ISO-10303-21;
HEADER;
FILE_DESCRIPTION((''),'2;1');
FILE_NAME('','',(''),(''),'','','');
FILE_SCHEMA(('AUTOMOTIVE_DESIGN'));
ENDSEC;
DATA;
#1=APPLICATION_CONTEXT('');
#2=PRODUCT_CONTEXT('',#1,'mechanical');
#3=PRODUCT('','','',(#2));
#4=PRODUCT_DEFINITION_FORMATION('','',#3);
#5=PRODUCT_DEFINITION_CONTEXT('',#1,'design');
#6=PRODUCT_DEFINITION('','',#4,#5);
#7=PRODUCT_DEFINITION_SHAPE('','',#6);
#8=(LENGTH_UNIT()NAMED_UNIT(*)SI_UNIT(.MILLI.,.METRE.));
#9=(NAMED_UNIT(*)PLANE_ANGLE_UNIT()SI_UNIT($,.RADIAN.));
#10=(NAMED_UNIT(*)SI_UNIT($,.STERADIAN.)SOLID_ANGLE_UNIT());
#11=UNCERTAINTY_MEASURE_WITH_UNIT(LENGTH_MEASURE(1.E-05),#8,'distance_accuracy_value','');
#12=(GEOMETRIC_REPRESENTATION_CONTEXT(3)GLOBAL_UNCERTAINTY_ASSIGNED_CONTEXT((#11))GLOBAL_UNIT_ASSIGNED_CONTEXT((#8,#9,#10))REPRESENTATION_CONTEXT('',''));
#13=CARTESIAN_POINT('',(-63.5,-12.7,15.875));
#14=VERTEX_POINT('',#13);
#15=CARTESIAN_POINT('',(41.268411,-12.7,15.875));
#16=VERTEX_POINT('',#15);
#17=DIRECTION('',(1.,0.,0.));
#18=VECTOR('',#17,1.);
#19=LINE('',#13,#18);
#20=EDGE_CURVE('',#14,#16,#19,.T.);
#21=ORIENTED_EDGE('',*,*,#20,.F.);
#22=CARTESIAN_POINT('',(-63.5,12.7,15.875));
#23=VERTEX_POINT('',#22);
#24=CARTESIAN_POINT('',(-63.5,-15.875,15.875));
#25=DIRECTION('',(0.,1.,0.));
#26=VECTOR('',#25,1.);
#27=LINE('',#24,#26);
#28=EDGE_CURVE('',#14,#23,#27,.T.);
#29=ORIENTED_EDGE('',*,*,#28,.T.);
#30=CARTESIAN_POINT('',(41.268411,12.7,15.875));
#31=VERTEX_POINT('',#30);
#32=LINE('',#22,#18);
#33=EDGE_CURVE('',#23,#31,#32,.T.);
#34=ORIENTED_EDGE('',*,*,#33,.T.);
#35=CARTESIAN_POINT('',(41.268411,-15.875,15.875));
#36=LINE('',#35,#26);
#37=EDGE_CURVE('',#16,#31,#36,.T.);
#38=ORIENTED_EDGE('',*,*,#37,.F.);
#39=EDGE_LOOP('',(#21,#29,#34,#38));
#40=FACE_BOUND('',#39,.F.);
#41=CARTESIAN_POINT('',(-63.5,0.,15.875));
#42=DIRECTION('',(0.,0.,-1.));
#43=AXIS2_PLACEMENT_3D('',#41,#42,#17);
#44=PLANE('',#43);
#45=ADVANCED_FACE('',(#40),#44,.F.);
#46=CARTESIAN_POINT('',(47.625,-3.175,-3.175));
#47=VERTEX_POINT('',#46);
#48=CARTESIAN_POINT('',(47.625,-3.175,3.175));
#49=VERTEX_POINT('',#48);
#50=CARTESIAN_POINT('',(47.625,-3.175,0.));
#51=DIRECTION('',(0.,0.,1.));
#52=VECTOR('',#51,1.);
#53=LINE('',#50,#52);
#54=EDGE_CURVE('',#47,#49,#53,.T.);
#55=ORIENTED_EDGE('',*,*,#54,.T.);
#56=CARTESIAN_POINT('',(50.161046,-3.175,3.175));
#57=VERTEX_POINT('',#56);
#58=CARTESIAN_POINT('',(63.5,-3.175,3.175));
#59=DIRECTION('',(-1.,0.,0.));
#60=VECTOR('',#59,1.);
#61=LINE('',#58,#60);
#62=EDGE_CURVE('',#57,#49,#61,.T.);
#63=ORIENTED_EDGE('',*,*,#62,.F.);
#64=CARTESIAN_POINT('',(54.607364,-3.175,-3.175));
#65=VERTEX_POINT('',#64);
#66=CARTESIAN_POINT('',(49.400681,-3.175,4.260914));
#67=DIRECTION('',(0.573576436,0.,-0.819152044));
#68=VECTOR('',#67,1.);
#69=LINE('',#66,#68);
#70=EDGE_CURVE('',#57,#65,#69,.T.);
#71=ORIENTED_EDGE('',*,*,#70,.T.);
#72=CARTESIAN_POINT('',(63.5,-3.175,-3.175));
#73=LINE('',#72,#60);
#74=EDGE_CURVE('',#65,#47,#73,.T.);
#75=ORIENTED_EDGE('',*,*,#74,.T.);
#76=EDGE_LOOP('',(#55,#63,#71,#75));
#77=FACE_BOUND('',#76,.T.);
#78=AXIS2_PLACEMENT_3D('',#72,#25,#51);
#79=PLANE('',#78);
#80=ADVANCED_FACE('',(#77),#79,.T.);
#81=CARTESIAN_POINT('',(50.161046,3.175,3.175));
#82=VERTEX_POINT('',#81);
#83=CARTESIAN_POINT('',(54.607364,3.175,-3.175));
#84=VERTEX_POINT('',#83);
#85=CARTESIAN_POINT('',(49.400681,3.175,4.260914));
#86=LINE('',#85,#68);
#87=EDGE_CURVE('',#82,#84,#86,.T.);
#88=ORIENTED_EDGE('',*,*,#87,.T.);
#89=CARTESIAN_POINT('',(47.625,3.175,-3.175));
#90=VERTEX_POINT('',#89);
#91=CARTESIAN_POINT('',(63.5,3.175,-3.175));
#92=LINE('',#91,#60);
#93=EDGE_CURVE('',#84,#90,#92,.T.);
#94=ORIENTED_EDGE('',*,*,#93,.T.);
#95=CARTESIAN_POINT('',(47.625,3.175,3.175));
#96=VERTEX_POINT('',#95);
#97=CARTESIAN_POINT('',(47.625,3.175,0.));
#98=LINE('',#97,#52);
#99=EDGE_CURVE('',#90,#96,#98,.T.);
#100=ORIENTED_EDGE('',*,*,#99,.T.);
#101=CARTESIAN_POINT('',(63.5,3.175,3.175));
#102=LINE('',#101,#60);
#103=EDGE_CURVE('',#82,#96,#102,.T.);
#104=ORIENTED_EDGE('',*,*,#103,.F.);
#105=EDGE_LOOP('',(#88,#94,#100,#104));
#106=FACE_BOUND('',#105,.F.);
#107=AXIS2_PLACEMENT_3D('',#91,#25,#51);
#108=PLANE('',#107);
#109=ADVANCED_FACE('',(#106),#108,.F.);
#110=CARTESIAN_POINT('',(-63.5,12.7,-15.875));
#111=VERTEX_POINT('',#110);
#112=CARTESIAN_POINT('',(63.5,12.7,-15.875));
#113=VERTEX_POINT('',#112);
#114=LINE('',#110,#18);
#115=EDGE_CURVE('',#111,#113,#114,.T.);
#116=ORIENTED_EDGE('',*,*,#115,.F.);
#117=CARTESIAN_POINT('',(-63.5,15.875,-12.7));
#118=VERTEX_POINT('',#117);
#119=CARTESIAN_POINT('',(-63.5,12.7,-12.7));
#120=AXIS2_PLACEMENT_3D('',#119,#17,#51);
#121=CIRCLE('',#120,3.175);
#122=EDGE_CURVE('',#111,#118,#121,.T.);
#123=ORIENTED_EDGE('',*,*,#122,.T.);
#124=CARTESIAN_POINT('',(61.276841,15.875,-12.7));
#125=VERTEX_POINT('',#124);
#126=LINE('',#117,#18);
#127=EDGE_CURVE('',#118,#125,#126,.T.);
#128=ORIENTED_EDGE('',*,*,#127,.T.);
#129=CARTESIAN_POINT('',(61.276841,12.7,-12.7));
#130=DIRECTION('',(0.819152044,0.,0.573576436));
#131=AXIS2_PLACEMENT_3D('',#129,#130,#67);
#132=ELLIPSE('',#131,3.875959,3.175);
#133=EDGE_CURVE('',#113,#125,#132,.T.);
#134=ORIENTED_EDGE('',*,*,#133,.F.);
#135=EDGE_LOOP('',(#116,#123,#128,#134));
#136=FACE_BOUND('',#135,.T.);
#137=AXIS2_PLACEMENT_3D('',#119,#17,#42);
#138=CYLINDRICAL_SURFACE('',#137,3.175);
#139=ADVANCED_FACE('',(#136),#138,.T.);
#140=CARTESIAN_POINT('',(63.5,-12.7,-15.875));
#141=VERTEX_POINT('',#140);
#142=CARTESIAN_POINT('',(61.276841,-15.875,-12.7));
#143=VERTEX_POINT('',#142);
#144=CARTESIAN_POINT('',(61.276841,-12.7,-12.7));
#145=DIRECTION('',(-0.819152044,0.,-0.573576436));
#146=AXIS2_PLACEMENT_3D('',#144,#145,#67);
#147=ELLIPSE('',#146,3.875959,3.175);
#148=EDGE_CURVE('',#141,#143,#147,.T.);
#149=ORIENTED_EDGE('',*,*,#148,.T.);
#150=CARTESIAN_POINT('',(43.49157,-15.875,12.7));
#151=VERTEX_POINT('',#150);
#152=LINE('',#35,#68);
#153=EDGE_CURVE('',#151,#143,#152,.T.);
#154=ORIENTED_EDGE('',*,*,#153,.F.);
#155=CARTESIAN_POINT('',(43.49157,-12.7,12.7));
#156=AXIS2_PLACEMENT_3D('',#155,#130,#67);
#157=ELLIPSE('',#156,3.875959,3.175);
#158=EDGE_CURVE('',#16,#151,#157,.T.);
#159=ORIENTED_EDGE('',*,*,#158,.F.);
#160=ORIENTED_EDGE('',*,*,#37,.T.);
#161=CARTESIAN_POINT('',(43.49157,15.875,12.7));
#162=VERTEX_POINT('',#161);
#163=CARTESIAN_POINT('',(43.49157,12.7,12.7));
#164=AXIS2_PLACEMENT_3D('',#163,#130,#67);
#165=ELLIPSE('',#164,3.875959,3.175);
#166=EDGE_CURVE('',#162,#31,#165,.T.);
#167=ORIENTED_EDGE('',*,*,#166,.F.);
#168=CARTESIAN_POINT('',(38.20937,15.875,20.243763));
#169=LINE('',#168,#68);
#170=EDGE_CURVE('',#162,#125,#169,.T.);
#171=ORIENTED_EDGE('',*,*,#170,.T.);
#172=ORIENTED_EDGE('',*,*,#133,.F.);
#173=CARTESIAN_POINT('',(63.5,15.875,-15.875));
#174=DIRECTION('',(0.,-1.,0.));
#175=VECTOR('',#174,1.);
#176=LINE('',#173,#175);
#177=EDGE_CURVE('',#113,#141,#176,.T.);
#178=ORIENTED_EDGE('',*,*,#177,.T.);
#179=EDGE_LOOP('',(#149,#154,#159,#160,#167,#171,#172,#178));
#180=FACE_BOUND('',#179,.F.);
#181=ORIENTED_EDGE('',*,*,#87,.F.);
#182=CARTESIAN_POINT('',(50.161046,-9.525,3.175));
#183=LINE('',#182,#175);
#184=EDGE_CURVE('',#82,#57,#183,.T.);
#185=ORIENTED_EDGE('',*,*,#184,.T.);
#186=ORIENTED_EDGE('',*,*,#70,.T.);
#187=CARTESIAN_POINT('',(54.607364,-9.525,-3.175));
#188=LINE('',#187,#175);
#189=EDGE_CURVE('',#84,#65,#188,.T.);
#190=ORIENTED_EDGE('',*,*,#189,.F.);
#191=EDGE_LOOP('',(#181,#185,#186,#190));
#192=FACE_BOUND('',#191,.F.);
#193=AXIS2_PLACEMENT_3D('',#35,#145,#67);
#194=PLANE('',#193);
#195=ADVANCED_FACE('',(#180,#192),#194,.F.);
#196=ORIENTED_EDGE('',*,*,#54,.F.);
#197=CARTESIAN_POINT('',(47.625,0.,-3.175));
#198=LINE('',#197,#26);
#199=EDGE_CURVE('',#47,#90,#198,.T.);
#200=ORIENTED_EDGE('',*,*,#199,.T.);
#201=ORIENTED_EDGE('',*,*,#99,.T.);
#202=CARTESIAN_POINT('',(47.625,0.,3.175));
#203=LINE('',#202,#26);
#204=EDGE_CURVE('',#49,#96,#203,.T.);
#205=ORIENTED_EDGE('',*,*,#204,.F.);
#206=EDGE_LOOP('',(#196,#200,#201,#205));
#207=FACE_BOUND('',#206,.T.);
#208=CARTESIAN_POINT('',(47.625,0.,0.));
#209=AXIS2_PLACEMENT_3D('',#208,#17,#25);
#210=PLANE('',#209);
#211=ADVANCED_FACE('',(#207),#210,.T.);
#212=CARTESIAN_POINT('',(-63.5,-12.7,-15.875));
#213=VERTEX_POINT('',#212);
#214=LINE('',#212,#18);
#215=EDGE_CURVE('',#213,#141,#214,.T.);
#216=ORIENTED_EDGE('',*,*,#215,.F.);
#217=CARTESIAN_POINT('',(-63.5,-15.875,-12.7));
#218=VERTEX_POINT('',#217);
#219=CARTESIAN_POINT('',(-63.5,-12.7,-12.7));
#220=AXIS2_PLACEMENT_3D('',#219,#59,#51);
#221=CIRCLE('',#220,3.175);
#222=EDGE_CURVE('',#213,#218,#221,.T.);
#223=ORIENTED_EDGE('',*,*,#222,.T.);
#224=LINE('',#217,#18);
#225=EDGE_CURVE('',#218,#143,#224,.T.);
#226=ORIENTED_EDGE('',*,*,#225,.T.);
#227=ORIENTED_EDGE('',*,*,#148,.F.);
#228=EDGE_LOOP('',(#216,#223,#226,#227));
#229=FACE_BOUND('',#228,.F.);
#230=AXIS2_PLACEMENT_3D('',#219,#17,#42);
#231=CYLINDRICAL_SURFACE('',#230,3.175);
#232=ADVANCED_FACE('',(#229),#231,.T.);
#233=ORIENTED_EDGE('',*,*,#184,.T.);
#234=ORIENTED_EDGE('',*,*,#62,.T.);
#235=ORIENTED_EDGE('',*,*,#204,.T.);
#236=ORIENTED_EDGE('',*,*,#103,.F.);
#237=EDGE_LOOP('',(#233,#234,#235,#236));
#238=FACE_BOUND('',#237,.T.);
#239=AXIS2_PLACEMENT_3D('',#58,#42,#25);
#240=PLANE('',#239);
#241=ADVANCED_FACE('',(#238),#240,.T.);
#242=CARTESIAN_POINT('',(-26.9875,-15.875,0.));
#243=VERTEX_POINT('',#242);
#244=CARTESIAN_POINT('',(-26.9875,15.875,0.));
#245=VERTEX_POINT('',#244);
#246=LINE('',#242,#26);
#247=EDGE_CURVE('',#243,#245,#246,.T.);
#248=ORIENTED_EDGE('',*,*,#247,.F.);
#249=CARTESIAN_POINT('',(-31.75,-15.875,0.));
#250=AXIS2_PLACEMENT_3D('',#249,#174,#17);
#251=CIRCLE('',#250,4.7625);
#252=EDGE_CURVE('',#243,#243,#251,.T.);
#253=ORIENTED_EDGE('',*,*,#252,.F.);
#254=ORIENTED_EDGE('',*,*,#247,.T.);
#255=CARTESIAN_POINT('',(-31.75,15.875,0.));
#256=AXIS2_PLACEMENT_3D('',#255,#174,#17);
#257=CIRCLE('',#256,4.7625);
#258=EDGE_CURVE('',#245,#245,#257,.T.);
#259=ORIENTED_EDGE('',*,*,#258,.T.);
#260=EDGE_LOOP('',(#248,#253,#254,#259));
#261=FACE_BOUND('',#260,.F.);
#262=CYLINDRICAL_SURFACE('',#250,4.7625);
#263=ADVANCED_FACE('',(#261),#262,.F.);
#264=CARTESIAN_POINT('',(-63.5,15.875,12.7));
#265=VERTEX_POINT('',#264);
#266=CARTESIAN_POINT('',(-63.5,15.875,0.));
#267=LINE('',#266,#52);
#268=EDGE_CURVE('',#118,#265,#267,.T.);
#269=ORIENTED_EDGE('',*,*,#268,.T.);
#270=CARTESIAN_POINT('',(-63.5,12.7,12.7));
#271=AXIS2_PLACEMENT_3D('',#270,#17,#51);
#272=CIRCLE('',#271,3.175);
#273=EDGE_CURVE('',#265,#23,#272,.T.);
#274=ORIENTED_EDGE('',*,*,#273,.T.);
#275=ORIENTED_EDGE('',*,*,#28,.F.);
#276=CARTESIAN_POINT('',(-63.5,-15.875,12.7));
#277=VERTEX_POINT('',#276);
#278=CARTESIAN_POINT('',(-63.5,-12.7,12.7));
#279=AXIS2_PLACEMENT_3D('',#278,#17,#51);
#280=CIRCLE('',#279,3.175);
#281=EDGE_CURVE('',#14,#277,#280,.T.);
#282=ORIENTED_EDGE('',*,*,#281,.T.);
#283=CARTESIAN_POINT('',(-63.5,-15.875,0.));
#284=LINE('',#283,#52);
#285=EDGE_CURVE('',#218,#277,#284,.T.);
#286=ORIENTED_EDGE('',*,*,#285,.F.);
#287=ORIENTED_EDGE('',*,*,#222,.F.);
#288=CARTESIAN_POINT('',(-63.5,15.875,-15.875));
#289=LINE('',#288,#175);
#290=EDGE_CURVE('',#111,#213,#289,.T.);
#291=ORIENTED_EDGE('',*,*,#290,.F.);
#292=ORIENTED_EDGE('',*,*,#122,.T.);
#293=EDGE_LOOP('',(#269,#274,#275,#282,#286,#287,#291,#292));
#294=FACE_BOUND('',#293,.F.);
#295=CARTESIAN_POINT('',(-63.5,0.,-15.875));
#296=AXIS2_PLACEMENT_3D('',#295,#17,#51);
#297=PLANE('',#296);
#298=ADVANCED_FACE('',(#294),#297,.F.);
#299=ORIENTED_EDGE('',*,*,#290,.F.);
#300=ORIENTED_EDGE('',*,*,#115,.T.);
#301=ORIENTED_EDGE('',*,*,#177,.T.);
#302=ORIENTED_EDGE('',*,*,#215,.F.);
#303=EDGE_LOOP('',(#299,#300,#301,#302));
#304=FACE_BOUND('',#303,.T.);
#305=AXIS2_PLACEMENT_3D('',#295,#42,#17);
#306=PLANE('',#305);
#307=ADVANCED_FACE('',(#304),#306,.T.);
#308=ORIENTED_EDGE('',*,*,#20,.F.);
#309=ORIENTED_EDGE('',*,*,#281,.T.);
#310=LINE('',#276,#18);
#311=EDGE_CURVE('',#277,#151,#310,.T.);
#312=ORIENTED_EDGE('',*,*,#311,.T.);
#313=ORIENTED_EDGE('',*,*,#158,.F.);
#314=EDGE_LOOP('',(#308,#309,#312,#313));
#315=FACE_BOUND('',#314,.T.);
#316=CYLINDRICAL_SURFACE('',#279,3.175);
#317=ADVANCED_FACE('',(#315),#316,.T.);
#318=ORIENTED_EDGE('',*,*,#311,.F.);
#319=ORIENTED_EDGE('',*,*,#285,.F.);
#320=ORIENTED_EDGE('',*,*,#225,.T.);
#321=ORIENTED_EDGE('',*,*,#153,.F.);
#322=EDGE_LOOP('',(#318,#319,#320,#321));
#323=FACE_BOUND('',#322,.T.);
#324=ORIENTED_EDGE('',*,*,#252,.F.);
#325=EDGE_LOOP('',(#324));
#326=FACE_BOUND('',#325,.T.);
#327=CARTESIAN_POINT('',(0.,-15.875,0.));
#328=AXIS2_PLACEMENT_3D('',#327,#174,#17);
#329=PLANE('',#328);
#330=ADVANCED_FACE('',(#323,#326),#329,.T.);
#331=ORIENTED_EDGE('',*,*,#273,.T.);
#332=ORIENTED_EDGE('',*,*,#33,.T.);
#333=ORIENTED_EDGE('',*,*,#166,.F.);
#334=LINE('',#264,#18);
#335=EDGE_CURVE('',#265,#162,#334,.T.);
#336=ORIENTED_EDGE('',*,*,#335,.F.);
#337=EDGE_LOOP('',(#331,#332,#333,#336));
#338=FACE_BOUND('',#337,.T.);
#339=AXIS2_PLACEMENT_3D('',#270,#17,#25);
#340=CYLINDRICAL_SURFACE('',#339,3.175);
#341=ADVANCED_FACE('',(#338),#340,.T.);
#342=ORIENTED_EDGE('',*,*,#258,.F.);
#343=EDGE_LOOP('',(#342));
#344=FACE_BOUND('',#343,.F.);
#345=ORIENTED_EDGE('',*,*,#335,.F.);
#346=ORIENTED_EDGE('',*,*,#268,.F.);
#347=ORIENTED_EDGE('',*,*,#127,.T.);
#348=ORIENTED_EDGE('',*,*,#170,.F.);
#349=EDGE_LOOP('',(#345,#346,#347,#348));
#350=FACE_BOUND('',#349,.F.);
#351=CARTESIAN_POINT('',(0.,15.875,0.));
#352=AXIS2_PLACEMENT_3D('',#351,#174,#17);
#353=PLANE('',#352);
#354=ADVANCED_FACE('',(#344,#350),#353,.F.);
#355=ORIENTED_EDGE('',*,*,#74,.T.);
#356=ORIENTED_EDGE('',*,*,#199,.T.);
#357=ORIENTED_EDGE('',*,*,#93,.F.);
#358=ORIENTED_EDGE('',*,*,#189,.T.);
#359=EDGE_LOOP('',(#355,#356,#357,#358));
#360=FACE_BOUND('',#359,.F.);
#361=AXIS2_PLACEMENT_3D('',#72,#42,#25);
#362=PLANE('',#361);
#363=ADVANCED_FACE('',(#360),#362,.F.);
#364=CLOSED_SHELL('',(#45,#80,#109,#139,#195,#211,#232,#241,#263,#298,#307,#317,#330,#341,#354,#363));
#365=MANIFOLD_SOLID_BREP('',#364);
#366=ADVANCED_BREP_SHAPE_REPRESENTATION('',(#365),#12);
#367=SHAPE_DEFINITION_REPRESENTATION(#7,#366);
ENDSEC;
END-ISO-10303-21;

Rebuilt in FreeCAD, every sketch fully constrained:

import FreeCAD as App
import Part
import Sketcher
from FreeCAD import Vector
Q = App.Units.Quantity


def edges_at(feature, points):
    """Names of the edges that pass closest to the given points."""
    edges = feature.Shape.Edges
    near = lambda p: min(range(len(edges)), key=lambda i: edges[i].distToShape(Part.Vertex(*p))[0])
    return sorted({f"Edge{near(p) + 1}" for p in points})


def add_polygon(sketch, points):
    """Adds a closed chain of lines whose ends are joined by coincident constraints."""
    first, n = sketch.GeometryCount, len(points)
    for a, b in zip(points, points[1:] + points[:1]):
        sketch.addGeometry(Part.LineSegment(App.Vector(*a, 0), App.Vector(*b, 0)), False)
    for i in range(n):
        sketch.addConstraint(Sketcher.Constraint("Coincident", first + i, 2, first + (i + 1) % n, 1))

doc = App.newDocument("Part")
body = doc.addObject("PartDesign::Body", "Body")

sketch1 = body.newObject("Sketcher::SketchObject", "Sketch")
sketch1.AttachmentSupport = (doc.getObject("XZ_Plane"), [""])
sketch1.MapMode = "FlatFace"
add_polygon(sketch1, [(-64, 16), (-64, -16), (64, -16), (64, 16)])
sketch1.addConstraint(Sketcher.Constraint("Vertical", 0))
sketch1.addConstraint(Sketcher.Constraint("Horizontal", 1))
sketch1.addConstraint(Sketcher.Constraint("Vertical", 2))
sketch1.addConstraint(Sketcher.Constraint("Horizontal", 3))
sketch1.addConstraint(Sketcher.Constraint("Symmetric", 0, 2, 2, 2, -1, 1))
sketch1.addConstraint(Sketcher.Constraint("DistanceX", 1, 1, 1, 2, Q("5 in")))
sketch1.addConstraint(Sketcher.Constraint("DistanceY", 0, 2, 0, 1, Q("1.25 in")))
pad1 = body.newObject("PartDesign::Pad", "Pad")
pad1.Profile = sketch1
pad1.Length = Q("1.25 in")
pad1.Midplane = True

sketch2 = body.newObject("Sketcher::SketchObject", "Sketch001")
sketch2.AttachmentSupport = (doc.getObject("XZ_Plane"), [""])
sketch2.MapMode = "FlatFace"
sketch2.AttachmentOffset = App.Placement(Vector(0, 0, 0.625 * 25.4), App.Rotation())
sketch2.addGeometry(Part.Circle(Vector(-31.8, 0, 0), Vector(0, 0, 1), 4.8), False)
sketch2.addConstraint(Sketcher.Constraint("PointOnObject", 0, 3, -1))
sketch2.addConstraint(Sketcher.Constraint("Diameter", 0, Q("0.375 in")))
sketch2.addConstraint(Sketcher.Constraint("DistanceX", 0, 3, -1, 1, Q("1.25 in")))
pocket1 = body.newObject("PartDesign::Pocket", "Pocket")
pocket1.Profile = sketch2
pocket1.Type = "ThroughAll"

sketch3 = body.newObject("Sketcher::SketchObject", "Sketch002")
sketch3.AttachmentSupport = (doc.getObject("XZ_Plane"), [""])
sketch3.MapMode = "FlatFace"
sketch3.AttachmentOffset = App.Placement(Vector(0, 0, 0.625 * 25.4), App.Rotation())
add_polygon(sketch3, [(41, 16), (64, -16), (64, 16)])
sketch3.addConstraint(Sketcher.Constraint("Vertical", 1))
sketch3.addConstraint(Sketcher.Constraint("Horizontal", 2))
sketch3.addConstraint(Sketcher.Constraint("Angle", 0, Q("-55 deg")))
sketch3.addConstraint(Sketcher.Constraint("DistanceY", 1, 1, 1, 2, Q("1.25 in")))
sketch3.addConstraint(Sketcher.Constraint("DistanceX", -1, 1, 0, 2, Q("2.5 in")))
sketch3.addConstraint(Sketcher.Constraint("DistanceY", 0, 2, -1, 1, Q("0.625 in")))
pocket2 = body.newObject("PartDesign::Pocket", "Pocket001")
pocket2.Profile = sketch3
pocket2.Type = "ThroughAll"

sketch4 = body.newObject("Sketcher::SketchObject", "Sketch003")
sketch4.AttachmentSupport = (doc.getObject("YZ_Plane"), [""])
sketch4.MapMode = "FlatFace"
sketch4.AttachmentOffset = App.Placement(Vector(0, 0, 2.5 * 25.4), App.Rotation())
add_polygon(sketch4, [(-3, 3), (-3, -3), (3, -3), (3, 3)])
sketch4.addConstraint(Sketcher.Constraint("Vertical", 0))
sketch4.addConstraint(Sketcher.Constraint("Horizontal", 1))
sketch4.addConstraint(Sketcher.Constraint("Vertical", 2))
sketch4.addConstraint(Sketcher.Constraint("Horizontal", 3))
sketch4.addConstraint(Sketcher.Constraint("Symmetric", 0, 2, 2, 2, -1, 1))
sketch4.addConstraint(Sketcher.Constraint("Equal", 3, 0))
sketch4.addConstraint(Sketcher.Constraint("DistanceX", 1, 1, 1, 2, Q("0.25 in")))
pocket3 = body.newObject("PartDesign::Pocket", "Pocket002")
pocket3.Profile = sketch4
pocket3.Length = Q("0.625 in")
doc.recompute()

fillet = body.newObject("PartDesign::Fillet", "Fillet")
fillet.Base = (pocket3, edges_at(pocket3, [
    (-11.116, -15.875, 15.875),
    (-11.116, 15.875, 15.875),
    (0, -15.875, -15.875),
    (0, 15.875, -15.875),
]))
fillet.Radius = Q("0.125 in")

doc.recompute()
